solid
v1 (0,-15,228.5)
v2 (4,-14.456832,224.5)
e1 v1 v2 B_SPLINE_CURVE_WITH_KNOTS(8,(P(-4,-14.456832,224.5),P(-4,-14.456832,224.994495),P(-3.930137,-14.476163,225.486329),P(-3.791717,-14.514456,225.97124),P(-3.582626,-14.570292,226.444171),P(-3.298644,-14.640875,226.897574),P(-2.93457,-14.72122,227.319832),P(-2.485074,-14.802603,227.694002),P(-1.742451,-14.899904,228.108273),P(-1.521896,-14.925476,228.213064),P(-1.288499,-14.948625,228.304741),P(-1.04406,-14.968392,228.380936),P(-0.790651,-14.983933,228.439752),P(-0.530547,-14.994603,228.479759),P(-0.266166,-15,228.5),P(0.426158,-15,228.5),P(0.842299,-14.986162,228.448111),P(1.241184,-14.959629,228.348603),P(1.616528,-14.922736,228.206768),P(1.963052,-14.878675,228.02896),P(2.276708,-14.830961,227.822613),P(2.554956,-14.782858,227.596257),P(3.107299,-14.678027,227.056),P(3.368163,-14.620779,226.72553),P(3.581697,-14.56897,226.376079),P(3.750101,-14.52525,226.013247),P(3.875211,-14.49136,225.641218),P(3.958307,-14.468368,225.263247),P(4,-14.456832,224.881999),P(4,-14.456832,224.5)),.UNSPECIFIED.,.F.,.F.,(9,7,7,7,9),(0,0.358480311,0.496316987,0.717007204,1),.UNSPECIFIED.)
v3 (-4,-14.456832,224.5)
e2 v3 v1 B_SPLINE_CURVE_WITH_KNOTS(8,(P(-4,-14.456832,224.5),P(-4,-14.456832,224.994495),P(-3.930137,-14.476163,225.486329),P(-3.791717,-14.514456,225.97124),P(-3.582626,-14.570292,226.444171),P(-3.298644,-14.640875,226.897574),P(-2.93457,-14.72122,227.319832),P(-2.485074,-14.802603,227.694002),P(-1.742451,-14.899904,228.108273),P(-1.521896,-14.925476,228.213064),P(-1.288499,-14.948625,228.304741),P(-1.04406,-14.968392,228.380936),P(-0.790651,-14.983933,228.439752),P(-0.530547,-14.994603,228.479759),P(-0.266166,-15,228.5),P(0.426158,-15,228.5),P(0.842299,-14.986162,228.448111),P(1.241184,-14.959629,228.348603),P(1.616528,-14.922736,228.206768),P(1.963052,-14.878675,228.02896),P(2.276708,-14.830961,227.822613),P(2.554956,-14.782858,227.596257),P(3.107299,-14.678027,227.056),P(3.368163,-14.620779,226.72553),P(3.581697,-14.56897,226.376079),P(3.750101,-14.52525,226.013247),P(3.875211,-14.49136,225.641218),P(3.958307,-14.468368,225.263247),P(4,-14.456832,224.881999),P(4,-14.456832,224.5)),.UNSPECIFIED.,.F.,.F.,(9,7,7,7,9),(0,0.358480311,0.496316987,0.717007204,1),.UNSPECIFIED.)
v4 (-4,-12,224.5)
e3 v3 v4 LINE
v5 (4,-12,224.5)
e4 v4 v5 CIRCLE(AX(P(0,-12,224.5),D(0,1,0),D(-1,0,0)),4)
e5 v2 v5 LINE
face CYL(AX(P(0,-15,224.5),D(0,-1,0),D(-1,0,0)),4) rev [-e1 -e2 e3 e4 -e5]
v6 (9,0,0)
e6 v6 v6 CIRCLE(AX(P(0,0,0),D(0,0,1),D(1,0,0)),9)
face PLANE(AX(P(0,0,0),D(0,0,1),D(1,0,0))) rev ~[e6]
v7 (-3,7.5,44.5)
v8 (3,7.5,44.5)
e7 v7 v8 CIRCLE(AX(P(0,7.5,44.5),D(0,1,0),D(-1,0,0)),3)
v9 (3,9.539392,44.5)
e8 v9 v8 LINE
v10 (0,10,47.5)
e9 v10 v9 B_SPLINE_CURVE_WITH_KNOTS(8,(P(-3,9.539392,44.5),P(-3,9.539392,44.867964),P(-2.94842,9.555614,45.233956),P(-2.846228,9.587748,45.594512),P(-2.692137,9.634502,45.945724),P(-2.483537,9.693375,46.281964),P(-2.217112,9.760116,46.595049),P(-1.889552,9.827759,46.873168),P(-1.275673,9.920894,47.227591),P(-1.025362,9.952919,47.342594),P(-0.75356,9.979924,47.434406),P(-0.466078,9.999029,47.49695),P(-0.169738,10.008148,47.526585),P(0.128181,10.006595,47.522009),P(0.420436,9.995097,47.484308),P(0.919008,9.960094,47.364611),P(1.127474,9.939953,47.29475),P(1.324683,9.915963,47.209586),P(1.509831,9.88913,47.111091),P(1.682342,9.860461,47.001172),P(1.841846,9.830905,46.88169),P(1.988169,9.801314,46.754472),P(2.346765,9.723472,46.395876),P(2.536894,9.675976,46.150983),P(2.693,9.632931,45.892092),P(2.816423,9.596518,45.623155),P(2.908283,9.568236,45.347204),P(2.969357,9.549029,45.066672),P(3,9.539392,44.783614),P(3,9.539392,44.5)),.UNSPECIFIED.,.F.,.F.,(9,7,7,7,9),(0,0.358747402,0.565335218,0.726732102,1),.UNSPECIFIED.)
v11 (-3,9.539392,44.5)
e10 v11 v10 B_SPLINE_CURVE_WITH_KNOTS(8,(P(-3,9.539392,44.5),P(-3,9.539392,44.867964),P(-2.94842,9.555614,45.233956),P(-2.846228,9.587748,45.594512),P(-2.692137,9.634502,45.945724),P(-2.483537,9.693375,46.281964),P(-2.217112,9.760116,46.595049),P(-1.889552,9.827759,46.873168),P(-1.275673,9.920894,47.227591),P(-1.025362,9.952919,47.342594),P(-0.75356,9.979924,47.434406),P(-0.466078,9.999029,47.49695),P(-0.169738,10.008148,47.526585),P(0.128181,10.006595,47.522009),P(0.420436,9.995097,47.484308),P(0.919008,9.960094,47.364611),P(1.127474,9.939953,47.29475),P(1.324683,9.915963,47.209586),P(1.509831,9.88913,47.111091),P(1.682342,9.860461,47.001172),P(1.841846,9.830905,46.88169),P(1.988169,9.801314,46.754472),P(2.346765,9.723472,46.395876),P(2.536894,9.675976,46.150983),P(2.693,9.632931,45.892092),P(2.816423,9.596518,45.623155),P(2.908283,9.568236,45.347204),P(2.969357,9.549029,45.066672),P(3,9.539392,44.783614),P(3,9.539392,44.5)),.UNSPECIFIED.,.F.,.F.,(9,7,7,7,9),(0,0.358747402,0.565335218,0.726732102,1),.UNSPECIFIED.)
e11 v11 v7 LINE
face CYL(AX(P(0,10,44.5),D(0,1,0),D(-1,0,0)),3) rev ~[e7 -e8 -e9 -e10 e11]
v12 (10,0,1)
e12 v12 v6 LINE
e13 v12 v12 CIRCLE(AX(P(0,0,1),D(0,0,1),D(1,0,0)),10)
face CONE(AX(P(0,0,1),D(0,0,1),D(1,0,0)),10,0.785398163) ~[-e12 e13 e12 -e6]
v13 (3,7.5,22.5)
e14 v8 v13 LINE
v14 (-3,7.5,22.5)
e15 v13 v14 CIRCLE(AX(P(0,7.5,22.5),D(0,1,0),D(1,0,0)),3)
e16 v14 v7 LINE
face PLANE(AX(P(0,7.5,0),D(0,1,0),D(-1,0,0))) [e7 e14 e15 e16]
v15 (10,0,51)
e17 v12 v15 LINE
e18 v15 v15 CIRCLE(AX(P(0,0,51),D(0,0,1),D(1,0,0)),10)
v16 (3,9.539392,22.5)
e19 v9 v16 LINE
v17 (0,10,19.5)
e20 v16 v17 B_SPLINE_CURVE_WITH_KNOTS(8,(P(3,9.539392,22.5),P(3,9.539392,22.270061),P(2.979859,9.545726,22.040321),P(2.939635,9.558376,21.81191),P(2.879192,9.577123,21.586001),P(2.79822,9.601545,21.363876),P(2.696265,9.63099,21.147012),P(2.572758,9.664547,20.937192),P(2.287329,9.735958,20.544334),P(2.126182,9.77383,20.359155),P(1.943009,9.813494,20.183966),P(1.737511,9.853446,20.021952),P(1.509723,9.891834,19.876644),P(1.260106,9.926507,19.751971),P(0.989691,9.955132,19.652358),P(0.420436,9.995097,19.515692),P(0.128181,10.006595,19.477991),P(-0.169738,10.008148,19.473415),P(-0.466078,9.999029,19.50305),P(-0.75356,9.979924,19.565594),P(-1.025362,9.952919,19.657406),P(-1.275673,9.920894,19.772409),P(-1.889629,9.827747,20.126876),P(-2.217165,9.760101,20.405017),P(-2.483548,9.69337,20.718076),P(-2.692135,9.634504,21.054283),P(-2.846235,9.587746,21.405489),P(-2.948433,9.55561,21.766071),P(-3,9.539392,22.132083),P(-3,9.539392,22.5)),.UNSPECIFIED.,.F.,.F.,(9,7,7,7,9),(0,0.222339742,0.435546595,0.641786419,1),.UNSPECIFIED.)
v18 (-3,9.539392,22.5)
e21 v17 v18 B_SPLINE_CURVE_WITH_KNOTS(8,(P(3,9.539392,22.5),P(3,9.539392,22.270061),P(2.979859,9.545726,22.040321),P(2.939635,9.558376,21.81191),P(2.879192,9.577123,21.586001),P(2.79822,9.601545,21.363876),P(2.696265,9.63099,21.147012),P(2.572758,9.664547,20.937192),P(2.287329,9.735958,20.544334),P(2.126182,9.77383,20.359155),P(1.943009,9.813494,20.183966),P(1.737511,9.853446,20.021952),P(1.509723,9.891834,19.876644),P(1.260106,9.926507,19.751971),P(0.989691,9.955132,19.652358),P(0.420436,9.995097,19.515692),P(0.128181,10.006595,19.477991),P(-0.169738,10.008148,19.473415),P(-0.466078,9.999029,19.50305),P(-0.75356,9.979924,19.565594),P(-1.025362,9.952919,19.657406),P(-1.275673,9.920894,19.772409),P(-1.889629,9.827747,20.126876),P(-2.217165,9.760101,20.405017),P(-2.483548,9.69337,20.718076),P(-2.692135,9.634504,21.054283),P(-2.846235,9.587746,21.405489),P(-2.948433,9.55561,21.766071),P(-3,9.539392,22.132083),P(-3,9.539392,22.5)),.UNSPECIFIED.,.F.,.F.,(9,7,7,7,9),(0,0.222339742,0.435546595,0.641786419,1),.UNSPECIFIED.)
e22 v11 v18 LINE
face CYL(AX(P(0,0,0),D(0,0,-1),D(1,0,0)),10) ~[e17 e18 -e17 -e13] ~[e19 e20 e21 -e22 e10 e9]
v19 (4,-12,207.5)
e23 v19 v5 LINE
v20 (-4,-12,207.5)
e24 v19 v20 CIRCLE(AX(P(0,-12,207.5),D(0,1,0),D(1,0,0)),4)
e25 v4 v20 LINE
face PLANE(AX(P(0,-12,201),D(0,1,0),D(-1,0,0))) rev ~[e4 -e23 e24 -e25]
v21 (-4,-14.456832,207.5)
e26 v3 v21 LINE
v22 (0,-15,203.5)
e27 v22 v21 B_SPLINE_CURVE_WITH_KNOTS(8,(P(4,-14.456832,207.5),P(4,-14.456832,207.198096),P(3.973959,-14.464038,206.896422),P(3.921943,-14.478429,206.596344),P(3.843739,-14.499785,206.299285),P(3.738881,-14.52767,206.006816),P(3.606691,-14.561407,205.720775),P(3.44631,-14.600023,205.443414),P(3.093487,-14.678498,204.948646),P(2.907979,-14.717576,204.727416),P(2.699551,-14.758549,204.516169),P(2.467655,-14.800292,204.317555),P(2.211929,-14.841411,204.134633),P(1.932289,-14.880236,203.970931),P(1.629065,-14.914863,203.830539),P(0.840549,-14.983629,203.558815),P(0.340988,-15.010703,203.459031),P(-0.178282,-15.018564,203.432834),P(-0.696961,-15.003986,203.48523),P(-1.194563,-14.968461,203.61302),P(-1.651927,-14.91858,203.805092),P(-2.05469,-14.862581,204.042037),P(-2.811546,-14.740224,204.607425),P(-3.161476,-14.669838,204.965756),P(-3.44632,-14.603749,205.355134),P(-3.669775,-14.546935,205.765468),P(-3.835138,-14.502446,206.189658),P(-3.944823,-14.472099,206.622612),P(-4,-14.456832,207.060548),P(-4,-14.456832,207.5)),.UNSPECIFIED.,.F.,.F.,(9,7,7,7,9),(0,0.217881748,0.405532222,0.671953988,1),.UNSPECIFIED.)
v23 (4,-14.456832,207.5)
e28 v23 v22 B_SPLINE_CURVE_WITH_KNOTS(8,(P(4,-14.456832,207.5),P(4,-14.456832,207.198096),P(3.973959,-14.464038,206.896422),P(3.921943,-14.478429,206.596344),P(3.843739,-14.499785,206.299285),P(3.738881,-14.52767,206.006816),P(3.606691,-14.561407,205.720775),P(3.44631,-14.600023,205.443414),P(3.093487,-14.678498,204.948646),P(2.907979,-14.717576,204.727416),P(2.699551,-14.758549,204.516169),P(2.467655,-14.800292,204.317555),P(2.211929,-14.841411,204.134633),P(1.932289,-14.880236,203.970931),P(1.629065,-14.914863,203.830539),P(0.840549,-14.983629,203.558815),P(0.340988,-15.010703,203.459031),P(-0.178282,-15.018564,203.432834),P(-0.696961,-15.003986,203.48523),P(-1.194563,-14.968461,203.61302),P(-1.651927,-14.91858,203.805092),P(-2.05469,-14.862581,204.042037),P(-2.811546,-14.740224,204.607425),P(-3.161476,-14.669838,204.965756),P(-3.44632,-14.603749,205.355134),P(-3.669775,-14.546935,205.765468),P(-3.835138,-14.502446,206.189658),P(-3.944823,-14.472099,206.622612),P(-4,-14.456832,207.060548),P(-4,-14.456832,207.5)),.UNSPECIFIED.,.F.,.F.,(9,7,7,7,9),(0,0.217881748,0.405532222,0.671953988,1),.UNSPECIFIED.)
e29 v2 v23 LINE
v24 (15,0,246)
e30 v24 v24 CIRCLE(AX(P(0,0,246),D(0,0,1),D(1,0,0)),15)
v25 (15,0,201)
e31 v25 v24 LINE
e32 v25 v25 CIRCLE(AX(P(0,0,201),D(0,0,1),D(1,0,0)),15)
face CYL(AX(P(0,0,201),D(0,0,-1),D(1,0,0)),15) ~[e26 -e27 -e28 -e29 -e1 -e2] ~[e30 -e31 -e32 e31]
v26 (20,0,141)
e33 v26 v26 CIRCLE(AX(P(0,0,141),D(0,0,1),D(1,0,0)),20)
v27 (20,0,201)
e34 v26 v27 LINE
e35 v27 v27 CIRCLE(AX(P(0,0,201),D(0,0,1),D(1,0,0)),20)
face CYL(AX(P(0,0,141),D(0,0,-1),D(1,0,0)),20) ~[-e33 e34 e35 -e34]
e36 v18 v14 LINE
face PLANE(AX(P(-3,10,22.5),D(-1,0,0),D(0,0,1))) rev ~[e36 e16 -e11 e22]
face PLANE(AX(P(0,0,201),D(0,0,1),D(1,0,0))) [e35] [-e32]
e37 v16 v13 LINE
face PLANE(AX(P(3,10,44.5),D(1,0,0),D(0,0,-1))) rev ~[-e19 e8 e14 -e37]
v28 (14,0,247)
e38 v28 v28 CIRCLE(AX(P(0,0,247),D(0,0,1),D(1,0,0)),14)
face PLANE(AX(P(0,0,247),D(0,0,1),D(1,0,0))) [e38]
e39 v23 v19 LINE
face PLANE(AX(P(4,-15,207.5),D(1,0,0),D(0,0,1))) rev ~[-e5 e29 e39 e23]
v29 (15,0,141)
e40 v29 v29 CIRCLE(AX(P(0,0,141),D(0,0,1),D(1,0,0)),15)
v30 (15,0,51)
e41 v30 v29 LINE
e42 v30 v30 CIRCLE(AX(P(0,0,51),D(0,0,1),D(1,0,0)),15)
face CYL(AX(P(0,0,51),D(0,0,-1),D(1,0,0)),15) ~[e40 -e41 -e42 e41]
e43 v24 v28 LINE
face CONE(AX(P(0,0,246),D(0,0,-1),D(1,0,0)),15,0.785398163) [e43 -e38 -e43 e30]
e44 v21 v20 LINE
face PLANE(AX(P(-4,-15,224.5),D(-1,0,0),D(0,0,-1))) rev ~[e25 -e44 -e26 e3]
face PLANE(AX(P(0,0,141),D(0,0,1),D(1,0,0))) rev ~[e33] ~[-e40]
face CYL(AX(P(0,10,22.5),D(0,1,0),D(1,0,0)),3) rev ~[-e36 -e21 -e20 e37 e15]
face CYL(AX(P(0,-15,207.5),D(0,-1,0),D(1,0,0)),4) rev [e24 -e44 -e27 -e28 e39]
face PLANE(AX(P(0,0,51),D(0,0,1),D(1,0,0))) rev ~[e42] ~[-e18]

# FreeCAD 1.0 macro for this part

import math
import FreeCAD as App
import Part
import Sketcher
from FreeCAD import Vector
Q = App.Units.Quantity


def edges_at(feature, points):
    """Names of the edges that pass closest to the given points."""
    edges = feature.Shape.Edges
    near = lambda p: min(range(len(edges)), key=lambda i: edges[i].distToShape(Part.Vertex(*p))[0])
    return sorted({f"Edge{near(p) + 1}" for p in points})

doc = App.newDocument("Part")
body = doc.addObject("PartDesign::Body", "Body")

sketch1 = doc.addObject("Sketcher::SketchObject", "Sketch")
body.addObject(sketch1)
sketch1.AttachmentSupport = (doc.XY_Plane, [""])
sketch1.MapMode = "FlatFace"
sketch1.addGeometry(Part.Circle(Vector(0, 0, 0), Vector(0, 0, 1), 10), False)
sketch1.addConstraint(Sketcher.Constraint("Coincident", 0, 3, -1, 1))
sketch1.addConstraint(Sketcher.Constraint("Diameter", 0, Q("20 mm")))
pad1 = doc.addObject("PartDesign::Pad", "Pad")
body.addObject(pad1)
pad1.Profile = sketch1
pad1.Length = 51

sketch2 = doc.addObject("Sketcher::SketchObject", "Sketch001")
body.addObject(sketch2)
sketch2.AttachmentSupport = (doc.XY_Plane, [""])
sketch2.MapMode = "FlatFace"
sketch2.AttachmentOffset = App.Placement(Vector(0, 0, 51), App.Rotation())
sketch2.addGeometry(Part.Circle(Vector(0, 0, 0), Vector(0, 0, 1), 15), False)
sketch2.addConstraint(Sketcher.Constraint("Coincident", 0, 3, -1, 1))
sketch2.addConstraint(Sketcher.Constraint("Diameter", 0, Q("30 mm")))
pad2 = doc.addObject("PartDesign::Pad", "Pad001")
body.addObject(pad2)
pad2.Profile = sketch2
pad2.Length = 90

sketch3 = doc.addObject("Sketcher::SketchObject", "Sketch002")
body.addObject(sketch3)
sketch3.AttachmentSupport = (doc.XY_Plane, [""])
sketch3.MapMode = "FlatFace"
sketch3.AttachmentOffset = App.Placement(Vector(0, 0, 141), App.Rotation())
sketch3.addGeometry(Part.Circle(Vector(0, 0, 0), Vector(0, 0, 1), 20), False)
sketch3.addConstraint(Sketcher.Constraint("Coincident", 0, 3, -1, 1))
sketch3.addConstraint(Sketcher.Constraint("Diameter", 0, Q("40 mm")))
pad3 = doc.addObject("PartDesign::Pad", "Pad002")
body.addObject(pad3)
pad3.Profile = sketch3
pad3.Length = 60

sketch4 = doc.addObject("Sketcher::SketchObject", "Sketch003")
body.addObject(sketch4)
sketch4.AttachmentSupport = (doc.XY_Plane, [""])
sketch4.MapMode = "FlatFace"
sketch4.AttachmentOffset = App.Placement(Vector(0, 0, 201), App.Rotation())
sketch4.addGeometry(Part.Circle(Vector(0, 0, 0), Vector(0, 0, 1), 15), False)
sketch4.addConstraint(Sketcher.Constraint("Coincident", 0, 3, -1, 1))
sketch4.addConstraint(Sketcher.Constraint("Diameter", 0, Q("30 mm")))
pad4 = doc.addObject("PartDesign::Pad", "Pad003")
body.addObject(pad4)
pad4.Profile = sketch4
pad4.Length = 46
doc.recompute()

chamfer = doc.addObject("PartDesign::Chamfer", "Chamfer")
body.addObject(chamfer)
chamfer.Base = (pad4, edges_at(pad4, [(-15, 0, 247), (-10, 0, 0)]))
chamfer.Size = 1

sketch5 = doc.addObject("Sketcher::SketchObject", "Sketch004")
body.addObject(sketch5)
sketch5.AttachmentSupport = (doc.XZ_Plane, [""])
sketch5.MapMode = "FlatFace"
sketch5.AttachmentOffset = App.Placement(Vector(0, 0, -10), App.Rotation())
sketch5.addGeometry(Part.LineSegment(Vector(-3, 22.5, 0), Vector(-3, 44.5, 0)), False)
sketch5.addGeometry(Part.ArcOfCircle(Part.Circle(Vector(0, 44.5, 0), Vector(0, 0, 1), 3), math.radians(0), math.radians(180)), False)
sketch5.addGeometry(Part.LineSegment(Vector(3, 44.5, 0), Vector(3, 22.5, 0)), False)
sketch5.addGeometry(Part.ArcOfCircle(Part.Circle(Vector(0, 22.5, 0), Vector(0, 0, 1), 3), math.radians(180), math.radians(360)), False)
sketch5.addConstraint(Sketcher.Constraint("Tangent", 0, 2, 1, 2))
sketch5.addConstraint(Sketcher.Constraint("Tangent", 1, 1, 2, 1))
sketch5.addConstraint(Sketcher.Constraint("Tangent", 2, 2, 3, 2))
sketch5.addConstraint(Sketcher.Constraint("Tangent", 3, 1, 0, 1))
sketch5.addConstraint(Sketcher.Constraint("Vertical", 0))
sketch5.addConstraint(Sketcher.Constraint("Vertical", 2))
sketch5.addConstraint(Sketcher.Constraint("PointOnObject", 1, 3, -2))
sketch5.addConstraint(Sketcher.Constraint("Radius", 1, Q("3 mm")))
sketch5.addConstraint(Sketcher.Constraint("DistanceY", 0, 1, 0, 2, Q("22 mm")))
sketch5.addConstraint(Sketcher.Constraint("DistanceY", -1, 1, 1, 3, Q("44.5 mm")))
pocket1 = doc.addObject("PartDesign::Pocket", "Pocket")
body.addObject(pocket1)
pocket1.Profile = sketch5
pocket1.Length = 2.5
pocket1.Reversed = True

sketch6 = doc.addObject("Sketcher::SketchObject", "Sketch005")
body.addObject(sketch6)
sketch6.AttachmentSupport = (doc.XZ_Plane, [""])
sketch6.MapMode = "FlatFace"
sketch6.AttachmentOffset = App.Placement(Vector(0, 0, 15), App.Rotation())
sketch6.addGeometry(Part.ArcOfCircle(Part.Circle(Vector(0, 224.5, 0), Vector(0, 0, 1), 4), math.radians(0), math.radians(180)), False)
sketch6.addGeometry(Part.LineSegment(Vector(4, 224.5, 0), Vector(4, 207.5, 0)), False)
sketch6.addGeometry(Part.ArcOfCircle(Part.Circle(Vector(0, 207.5, 0), Vector(0, 0, 1), 4), math.radians(180), math.radians(360)), False)
sketch6.addGeometry(Part.LineSegment(Vector(-4, 207.5, 0), Vector(-4, 224.5, 0)), False)
sketch6.addConstraint(Sketcher.Constraint("Tangent", 0, 1, 1, 1))
sketch6.addConstraint(Sketcher.Constraint("Tangent", 1, 2, 2, 2))
sketch6.addConstraint(Sketcher.Constraint("Tangent", 2, 1, 3, 1))
sketch6.addConstraint(Sketcher.Constraint("Tangent", 3, 2, 0, 2))
sketch6.addConstraint(Sketcher.Constraint("Vertical", 1))
sketch6.addConstraint(Sketcher.Constraint("Vertical", 3))
sketch6.addConstraint(Sketcher.Constraint("PointOnObject", 0, 3, -2))
sketch6.addConstraint(Sketcher.Constraint("Radius", 0, Q("4 mm")))
sketch6.addConstraint(Sketcher.Constraint("DistanceY", 1, 2, 1, 1, Q("17 mm")))
sketch6.addConstraint(Sketcher.Constraint("DistanceY", -1, 1, 0, 3, Q("224.5 mm")))
pocket2 = doc.addObject("PartDesign::Pocket", "Pocket001")
body.addObject(pocket2)
pocket2.Profile = sketch6
pocket2.Length = 3

doc.recompute()
